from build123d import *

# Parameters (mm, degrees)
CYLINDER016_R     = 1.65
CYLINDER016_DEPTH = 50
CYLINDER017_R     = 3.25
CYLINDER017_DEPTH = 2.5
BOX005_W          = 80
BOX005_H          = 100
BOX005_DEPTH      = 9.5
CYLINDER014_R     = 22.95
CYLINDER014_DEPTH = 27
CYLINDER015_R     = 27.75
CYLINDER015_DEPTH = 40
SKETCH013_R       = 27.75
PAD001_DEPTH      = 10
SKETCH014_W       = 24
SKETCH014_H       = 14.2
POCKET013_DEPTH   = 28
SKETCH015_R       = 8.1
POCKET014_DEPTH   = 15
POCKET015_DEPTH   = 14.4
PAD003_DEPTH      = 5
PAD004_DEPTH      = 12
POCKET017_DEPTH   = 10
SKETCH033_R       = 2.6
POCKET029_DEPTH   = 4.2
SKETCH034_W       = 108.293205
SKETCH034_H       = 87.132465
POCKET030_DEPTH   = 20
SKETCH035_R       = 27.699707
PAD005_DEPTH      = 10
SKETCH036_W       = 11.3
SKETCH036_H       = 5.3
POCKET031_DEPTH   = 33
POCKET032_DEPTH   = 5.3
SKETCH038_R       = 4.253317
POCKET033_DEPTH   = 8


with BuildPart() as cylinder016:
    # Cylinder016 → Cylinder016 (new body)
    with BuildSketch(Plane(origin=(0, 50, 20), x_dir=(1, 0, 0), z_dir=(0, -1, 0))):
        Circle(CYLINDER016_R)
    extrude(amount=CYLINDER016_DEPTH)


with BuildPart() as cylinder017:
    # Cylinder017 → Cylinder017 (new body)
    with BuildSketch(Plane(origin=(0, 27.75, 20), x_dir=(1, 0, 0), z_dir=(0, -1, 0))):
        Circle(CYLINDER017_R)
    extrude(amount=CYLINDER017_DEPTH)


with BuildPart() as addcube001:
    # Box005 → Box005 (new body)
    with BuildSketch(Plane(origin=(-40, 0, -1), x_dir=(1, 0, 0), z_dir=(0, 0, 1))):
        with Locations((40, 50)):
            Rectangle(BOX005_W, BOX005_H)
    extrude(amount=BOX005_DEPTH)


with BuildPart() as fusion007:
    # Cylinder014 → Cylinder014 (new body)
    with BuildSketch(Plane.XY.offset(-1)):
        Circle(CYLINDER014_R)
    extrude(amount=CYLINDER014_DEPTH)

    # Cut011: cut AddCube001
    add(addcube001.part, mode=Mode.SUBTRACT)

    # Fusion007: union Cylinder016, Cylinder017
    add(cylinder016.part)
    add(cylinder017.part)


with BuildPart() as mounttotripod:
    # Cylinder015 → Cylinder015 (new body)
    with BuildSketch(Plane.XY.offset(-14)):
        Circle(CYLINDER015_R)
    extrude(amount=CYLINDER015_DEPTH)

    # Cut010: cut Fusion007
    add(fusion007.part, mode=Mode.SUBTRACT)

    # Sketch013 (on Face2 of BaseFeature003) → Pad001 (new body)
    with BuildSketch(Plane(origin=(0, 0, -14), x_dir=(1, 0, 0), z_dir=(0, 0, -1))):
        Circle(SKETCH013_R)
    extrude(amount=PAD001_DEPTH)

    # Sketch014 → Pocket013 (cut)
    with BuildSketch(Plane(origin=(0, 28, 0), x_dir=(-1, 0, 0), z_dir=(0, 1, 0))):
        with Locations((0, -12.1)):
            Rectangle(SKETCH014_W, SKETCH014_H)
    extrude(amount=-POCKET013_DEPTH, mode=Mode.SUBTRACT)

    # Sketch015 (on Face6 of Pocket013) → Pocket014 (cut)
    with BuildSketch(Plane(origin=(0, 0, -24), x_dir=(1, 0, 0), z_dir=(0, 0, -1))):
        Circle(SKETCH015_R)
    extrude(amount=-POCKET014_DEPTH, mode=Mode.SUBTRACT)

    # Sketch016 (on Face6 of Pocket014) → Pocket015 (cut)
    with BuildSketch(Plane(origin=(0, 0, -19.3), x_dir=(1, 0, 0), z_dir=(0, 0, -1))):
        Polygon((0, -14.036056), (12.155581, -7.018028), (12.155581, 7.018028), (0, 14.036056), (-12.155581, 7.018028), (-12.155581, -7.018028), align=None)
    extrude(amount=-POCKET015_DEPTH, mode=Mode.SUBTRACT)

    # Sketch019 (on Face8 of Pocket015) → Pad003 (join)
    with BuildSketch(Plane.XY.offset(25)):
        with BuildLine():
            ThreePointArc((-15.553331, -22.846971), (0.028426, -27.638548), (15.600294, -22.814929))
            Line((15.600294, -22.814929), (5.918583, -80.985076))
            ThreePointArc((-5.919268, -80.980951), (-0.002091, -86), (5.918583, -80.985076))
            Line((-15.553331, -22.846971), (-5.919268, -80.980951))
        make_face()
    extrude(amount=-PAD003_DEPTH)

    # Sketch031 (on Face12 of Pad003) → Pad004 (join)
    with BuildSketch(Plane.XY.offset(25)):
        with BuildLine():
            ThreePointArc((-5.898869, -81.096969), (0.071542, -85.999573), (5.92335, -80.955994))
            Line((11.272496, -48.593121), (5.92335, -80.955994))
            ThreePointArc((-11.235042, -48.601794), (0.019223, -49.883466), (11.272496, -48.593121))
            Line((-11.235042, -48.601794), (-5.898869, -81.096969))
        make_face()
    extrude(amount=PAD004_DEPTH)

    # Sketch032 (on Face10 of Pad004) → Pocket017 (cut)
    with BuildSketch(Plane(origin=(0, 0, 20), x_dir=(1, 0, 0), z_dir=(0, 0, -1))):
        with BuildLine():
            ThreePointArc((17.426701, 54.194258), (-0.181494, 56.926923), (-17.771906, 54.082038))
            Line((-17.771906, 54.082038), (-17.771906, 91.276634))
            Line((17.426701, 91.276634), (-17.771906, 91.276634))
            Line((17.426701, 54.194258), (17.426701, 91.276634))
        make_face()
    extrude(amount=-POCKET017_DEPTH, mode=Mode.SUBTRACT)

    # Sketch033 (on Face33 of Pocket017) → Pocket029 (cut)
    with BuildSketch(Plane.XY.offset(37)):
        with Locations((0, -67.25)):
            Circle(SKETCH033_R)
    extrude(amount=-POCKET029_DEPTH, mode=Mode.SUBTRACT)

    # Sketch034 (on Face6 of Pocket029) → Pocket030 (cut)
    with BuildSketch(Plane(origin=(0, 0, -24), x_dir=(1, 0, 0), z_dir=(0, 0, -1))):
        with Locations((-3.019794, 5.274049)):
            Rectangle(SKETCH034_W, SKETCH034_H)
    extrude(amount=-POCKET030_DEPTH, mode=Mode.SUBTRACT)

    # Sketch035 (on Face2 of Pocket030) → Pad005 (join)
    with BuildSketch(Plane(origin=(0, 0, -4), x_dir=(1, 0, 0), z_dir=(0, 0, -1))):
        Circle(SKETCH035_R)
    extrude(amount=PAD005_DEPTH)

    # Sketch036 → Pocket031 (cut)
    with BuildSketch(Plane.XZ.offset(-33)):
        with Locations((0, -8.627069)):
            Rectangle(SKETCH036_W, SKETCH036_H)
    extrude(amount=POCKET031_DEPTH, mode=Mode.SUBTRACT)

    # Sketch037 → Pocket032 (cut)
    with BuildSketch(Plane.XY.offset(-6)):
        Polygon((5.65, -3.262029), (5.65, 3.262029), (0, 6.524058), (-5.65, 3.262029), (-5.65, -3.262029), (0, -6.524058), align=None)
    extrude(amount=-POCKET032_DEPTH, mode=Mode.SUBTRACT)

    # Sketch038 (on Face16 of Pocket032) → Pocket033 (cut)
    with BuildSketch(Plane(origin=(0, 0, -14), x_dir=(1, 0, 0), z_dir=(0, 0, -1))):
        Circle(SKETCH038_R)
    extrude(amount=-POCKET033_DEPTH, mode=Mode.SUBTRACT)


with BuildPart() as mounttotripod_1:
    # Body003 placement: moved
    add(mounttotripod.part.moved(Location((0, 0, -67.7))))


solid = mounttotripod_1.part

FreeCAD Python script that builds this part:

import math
import FreeCAD as App
import Part
import Sketcher

V = App.Vector
Q = App.Units.Quantity

doc = App.newDocument("Part")
body = doc.addObject("PartDesign::Body", "Body")

# Sketch on XZ plane
sketch1 = doc.addObject("Sketcher::SketchObject", "Sketch")
body.addObject(sketch1)
sketch1.AttachmentSupport = (doc.XZ_Plane, [""])
sketch1.MapMode = "FlatFace"
sketch1.AttachmentOffset = App.Placement(V(0, 0, -50), App.Rotation())
sketch1.addGeometry(Part.Circle(V(0, 20, 0), V(0, 0, 1), 1.65), False)
sketch1.addConstraint([
    Sketcher.Constraint("PointOnObject", 0, 3, -2),
    Sketcher.Constraint("Diameter", 0, 3.3),
    Sketcher.Constraint("DistanceY", -1, 1, 0, 3, 20.0),
])
pad1 = doc.addObject("PartDesign::Pad", "Pad")
body.addObject(pad1)
pad1.Profile = sketch1
pad1.Length = 50
body2 = doc.addObject("PartDesign::Body", "Body001")

# Sketch on XZ plane
sketch2 = doc.addObject("Sketcher::SketchObject", "Sketch001")
body2.addObject(sketch2)
sketch2.AttachmentSupport = (doc.getObject("XZ_Plane001"), [""])
sketch2.MapMode = "FlatFace"
sketch2.AttachmentOffset = App.Placement(V(0, 0, -27.75), App.Rotation())
sketch2.addGeometry(Part.Circle(V(0, 20, 0), V(0, 0, 1), 3.25), False)
sketch2.addConstraint([
    Sketcher.Constraint("PointOnObject", 0, 3, -2),
    Sketcher.Constraint("Diameter", 0, 6.5),
    Sketcher.Constraint("DistanceY", -1, 1, 0, 3, 20.0),
])
pad2 = doc.addObject("PartDesign::Pad", "Pad001")
body2.addObject(pad2)
pad2.Profile = sketch2
pad2.Length = 2.5
body3 = doc.addObject("PartDesign::Body", "Body002")

# Sketch on XY plane
sketch3 = doc.addObject("Sketcher::SketchObject", "Sketch002")
body3.addObject(sketch3)
sketch3.AttachmentSupport = (doc.getObject("XY_Plane002"), [""])
sketch3.MapMode = "FlatFace"
sketch3.AttachmentOffset = App.Placement(V(0, 0, -1), App.Rotation())
sketch3.addGeometry([
    Part.LineSegment(V(-40, 100, 0), V(-40, 0, 0)),
    Part.LineSegment(V(-40, 0, 0), V(40, 0, 0)),
    Part.LineSegment(V(40, 0, 0), V(40, 100, 0)),
    Part.LineSegment(V(40, 100, 0), V(-40, 100, 0)),
], False)
sketch3.addConstraint([
    Sketcher.Constraint("Coincident", 0, 2, 1, 1),
    Sketcher.Constraint("Coincident", 1, 2, 2, 1),
    Sketcher.Constraint("Coincident", 2, 2, 3, 1),
    Sketcher.Constraint("Coincident", 3, 2, 0, 1),
    Sketcher.Constraint("Vertical", 0),
    Sketcher.Constraint("Horizontal", 1),
    Sketcher.Constraint("Vertical", 2),
    Sketcher.Constraint("Horizontal", 3),
    Sketcher.Constraint("Symmetric", 0, 2, 1, 2, -1, 1),
    Sketcher.Constraint("DistanceX", 1, 1, 1, 2, 80.0),
    Sketcher.Constraint("DistanceY", 0, 2, 0, 1, 100.0),
])
pad3 = doc.addObject("PartDesign::Pad", "Pad002")
body3.addObject(pad3)
pad3.Profile = sketch3
pad3.Length = 9.5
body4 = doc.addObject("PartDesign::Body", "Body003")

# Sketch on XY plane
sketch4 = doc.addObject("Sketcher::SketchObject", "Sketch003")
body4.addObject(sketch4)
sketch4.AttachmentSupport = (doc.getObject("XY_Plane003"), [""])
sketch4.MapMode = "FlatFace"
sketch4.AttachmentOffset = App.Placement(V(0, 0, -1), App.Rotation())
sketch4.addGeometry(Part.Circle(V(0, 0, 0), V(0, 0, 1), 22.95), False)
sketch4.addConstraint([
    Sketcher.Constraint("Coincident", 0, 3, -1, 1),
    Sketcher.Constraint("Diameter", 0, 45.9),
])
pad4 = doc.addObject("PartDesign::Pad", "Pad003")
body4.addObject(pad4)
pad4.Profile = sketch4
pad4.Length = 27
doc.recompute()

boolean = doc.addObject("PartDesign::Boolean", "Boolean")
body4.addObject(boolean)
boolean.Type = "Cut"
boolean.addObjects([body3])
doc.recompute()

boolean2 = doc.addObject("PartDesign::Boolean", "Boolean001")
body4.addObject(boolean2)
boolean2.Type = "Fuse"
boolean2.addObjects([body])
doc.recompute()

boolean3 = doc.addObject("PartDesign::Boolean", "Boolean002")
body4.addObject(boolean3)
boolean3.Type = "Fuse"
boolean3.addObjects([body2])
body5 = doc.addObject("PartDesign::Body", "Body004")

# Sketch on XY plane
sketch5 = doc.addObject("Sketcher::SketchObject", "Sketch004")
body5.addObject(sketch5)
sketch5.AttachmentSupport = (doc.getObject("XY_Plane004"), [""])
sketch5.MapMode = "FlatFace"
sketch5.AttachmentOffset = App.Placement(V(0, 0, -14), App.Rotation())
sketch5.addGeometry(Part.Circle(V(0, 0, 0), V(0, 0, 1), 27.75), False)
sketch5.addConstraint([
    Sketcher.Constraint("Coincident", 0, 3, -1, 1),
    Sketcher.Constraint("Diameter", 0, 55.5),
])
pad5 = doc.addObject("PartDesign::Pad", "Pad004")
body5.addObject(pad5)
pad5.Profile = sketch5
pad5.Length = 40
doc.recompute()

boolean4 = doc.addObject("PartDesign::Boolean", "Boolean003")
body5.addObject(boolean4)
boolean4.Type = "Cut"
boolean4.addObjects([body4])

# Sketch on XY plane
sketch6 = doc.addObject("Sketcher::SketchObject", "Sketch005")
body5.addObject(sketch6)
sketch6.AttachmentSupport = (doc.getObject("XY_Plane004"), [""])
sketch6.MapMode = "FlatFace"
sketch6.AttachmentOffset = App.Placement(V(0, 0, -14), App.Rotation())
sketch6.addGeometry(Part.Circle(V(0, 0, 0), V(0, 0, 1), 27.75), False)
sketch6.addConstraint([
    Sketcher.Constraint("Coincident", 0, 3, -1, 1),
    Sketcher.Constraint("Diameter", 0, 55.5),
])
pad6 = doc.addObject("PartDesign::Pad", "Pad005")
body5.addObject(pad6)
pad6.Profile = sketch6
pad6.Length = 10
pad6.Reversed = True

# Sketch on XZ plane
sketch7 = doc.addObject("Sketcher::SketchObject", "Sketch006")
body5.addObject(sketch7)
sketch7.AttachmentSupport = (doc.getObject("XZ_Plane004"), [""])
sketch7.MapMode = "FlatFace"
sketch7.AttachmentOffset = App.Placement(V(0, 0, -28), App.Rotation())
sketch7.addGeometry([
    Part.LineSegment(V(12, -5, 0), V(12, -19.2, 0)),
    Part.LineSegment(V(12, -19.2, 0), V(-12, -19.2, 0)),
    Part.LineSegment(V(-12, -19.2, 0), V(-12, -5, 0)),
    Part.LineSegment(V(-12, -5, 0), V(12, -5, 0)),
], False)
sketch7.addConstraint([
    Sketcher.Constraint("Coincident", 0, 2, 1, 1),
    Sketcher.Constraint("Coincident", 1, 2, 2, 1),
    Sketcher.Constraint("Coincident", 2, 2, 3, 1),
    Sketcher.Constraint("Coincident", 3, 2, 0, 1),
    Sketcher.Constraint("Vertical", 0),
    Sketcher.Constraint("Horizontal", 1),
    Sketcher.Constraint("Vertical", 2),
    Sketcher.Constraint("Horizontal", 3),
    Sketcher.Constraint("DistanceX", 1, 2, 1, 1, 24.0),
    Sketcher.Constraint("DistanceY", 0, 2, 0, 1, 14.2),
    Sketcher.Constraint("DistanceX", -1, 1, 0, 2, 12.0),
    Sketcher.Constraint("DistanceY", 2, 2, -1, 1, 5.0),
])
pocket1 = doc.addObject("PartDesign::Pocket", "Pocket")
body5.addObject(pocket1)
pocket1.Profile = sketch7
pocket1.Length = 28
pocket1.Reversed = True

# Sketch on XY plane
sketch8 = doc.addObject("Sketcher::SketchObject", "Sketch007")
body5.addObject(sketch8)
sketch8.AttachmentSupport = (doc.getObject("XY_Plane004"), [""])
sketch8.MapMode = "FlatFace"
sketch8.AttachmentOffset = App.Placement(V(0, 0, -24), App.Rotation())
sketch8.addGeometry(Part.Circle(V(0, 0, 0), V(0, 0, 1), 8.1), False)
sketch8.addConstraint([
    Sketcher.Constraint("Coincident", 0, 3, -1, 1),
    Sketcher.Constraint("Diameter", 0, 16.2),
])
pocket2 = doc.addObject("PartDesign::Pocket", "Pocket001")
body5.addObject(pocket2)
pocket2.Profile = sketch8
pocket2.Length = 15
pocket2.Reversed = True

# Sketch on XY plane
sketch9 = doc.addObject("Sketcher::SketchObject", "Sketch008")
body5.addObject(sketch9)
sketch9.AttachmentSupport = (doc.getObject("XY_Plane004"), [""])
sketch9.MapMode = "FlatFace"
sketch9.AttachmentOffset = App.Placement(V(0, 0, -19.3), App.Rotation())
sketch9.addGeometry([
    Part.LineSegment(V(0, 14.036056, 0), V(12.155581, 7.018028, 0)),  # 0
    Part.LineSegment(V(12.155581, 7.018028, 0), V(12.155581, -7.018028, 0)),  # 1
    Part.LineSegment(V(12.155581, -7.018028, 0), V(0, -14.036056, 0)),  # 2
    Part.LineSegment(V(0, -14.036056, 0), V(-12.155581, -7.018028, 0)),  # 3
    Part.LineSegment(V(-12.155581, -7.018028, 0), V(-12.155581, 7.018028, 0)),  # 4
    Part.LineSegment(V(-12.155581, 7.018028, 0), V(0, 14.036056, 0)),  # 5
], False)
sketch9.addConstraint([
    Sketcher.Constraint("Coincident", 0, 2, 1, 1),
    Sketcher.Constraint("Coincident", 1, 2, 2, 1),
    Sketcher.Constraint("Coincident", 2, 2, 3, 1),
    Sketcher.Constraint("Coincident", 3, 2, 4, 1),
    Sketcher.Constraint("Coincident", 4, 2, 5, 1),
    Sketcher.Constraint("Coincident", 5, 2, 0, 1),
    Sketcher.Constraint("Vertical", 1),
    Sketcher.Constraint("Vertical", 4),
    Sketcher.Constraint("Symmetric", 0, 2, 3, 2, -1, 1),
    Sketcher.Constraint("Symmetric", 2, 2, 5, 2, -1, 1),
    Sketcher.Constraint("PointOnObject", 2, 2, -2),
    Sketcher.Constraint("Parallel", 2, 5),
    Sketcher.Constraint("Horizontal", 1, 2, 3, 2),
    Sketcher.Constraint("Angle", 0, Q("-30 deg")),
    Sketcher.Constraint("DistanceY", 1, 2, 1, 1, 14.036056),
    Sketcher.Constraint("DistanceX", -1, 1, 0, 2, 12.155581),
])
pocket3 = doc.addObject("PartDesign::Pocket", "Pocket002")
body5.addObject(pocket3)
pocket3.Profile = sketch9
pocket3.Length = 14.4
pocket3.Reversed = True

# Sketch on XY plane
sketch10 = doc.addObject("Sketcher::SketchObject", "Sketch009")
body5.addObject(sketch10)
sketch10.AttachmentSupport = (doc.getObject("XY_Plane004"), [""])
sketch10.MapMode = "FlatFace"
sketch10.AttachmentOffset = App.Placement(V(0, 0, 25), App.Rotation())
sketch10.addGeometry([
    Part.ArcOfCircle(Part.Circle(V(0, 0.000003, 0), V(0, 0, 1), 27.638566), math.radians(-124.24551), math.radians(-55.636631)),
    Part.LineSegment(V(-15.553331, -22.846971, 0), V(-5.919268, -80.980951, 0)),
    Part.ArcOfCircle(Part.Circle(V(0, -80.000001, 0), V(0, 0, 1), 6), math.radians(-170.590372), math.radians(-9.449559)),
    Part.LineSegment(V(5.918583, -80.985076, 0), V(15.600294, -22.814929, 0)),
], False)
sketch10.addConstraint([
    Sketcher.Constraint("Coincident", 0, 1, 1, 1),
    Sketcher.Constraint("Tangent", 1, 2, 2, 1),
    Sketcher.Constraint("Tangent", 2, 2, 3, 1),
    Sketcher.Constraint("Coincident", 3, 2, 0, 2),
    Sketcher.Constraint("Coincident", 0, 3, -1, 1),
    Sketcher.Constraint("PointOnObject", 2, 3, -2),
    Sketcher.Constraint("Radius", 2, 6.0),
    Sketcher.Constraint("DistanceY", 2, 3, -1, 1, 80.000001),
    Sketcher.Constraint("Radius", 0, 27.638566),
    Sketcher.Constraint("Distance", 1, 58.92686),
    Sketcher.Constraint("DistanceY", 3, 2, -1, 1, 22.814929),
])
pad7 = doc.addObject("PartDesign::Pad", "Pad006")
body5.addObject(pad7)
pad7.Profile = sketch10
pad7.Length = 5
pad7.Reversed = True

# Sketch on XY plane
sketch11 = doc.addObject("Sketcher::SketchObject", "Sketch010")
body5.addObject(sketch11)
sketch11.AttachmentSupport = (doc.getObject("XY_Plane004"), [""])
sketch11.MapMode = "FlatFace"
sketch11.AttachmentOffset = App.Placement(V(0, 0, 25), App.Rotation())
sketch11.addGeometry([
    Part.ArcOfCircle(Part.Circle(V(0, -80, 0), V(0, 0, 1), 6), math.radians(-169.46546), math.radians(-9.168148)),
    Part.LineSegment(V(5.92335, -80.955994, 0), V(11.272496, -48.593121, 0)),
    Part.ArcOfCircle(Part.Circle(V(0.000001, 0.000005, 0), V(0, 0, 1), 49.883474), math.radians(-103.016153), math.radians(-76.939691)),
    Part.LineSegment(V(-11.235042, -48.601794, 0), V(-5.898869, -81.096969, 0)),
], False)
sketch11.addConstraint([
    Sketcher.Constraint("Coincident", 0, 2, 1, 1),
    Sketcher.Constraint("Coincident", 1, 2, 2, 2),
    Sketcher.Constraint("Coincident", 2, 1, 3, 1),
    Sketcher.Constraint("Coincident", 3, 2, 0, 1),
    Sketcher.Constraint("Coincident", 2, 3, -1, 1),
    Sketcher.Constraint("PointOnObject", 0, 3, -2),
    Sketcher.Constraint("Radius", 0, 6.0),
    Sketcher.Constraint("DistanceY", 0, 3, -1, 1, 80.0),
    Sketcher.Constraint("Radius", 2, 49.883474),
    Sketcher.Constraint("DistanceY", 0, 2, 2, 3, 80.955999),
    Sketcher.Constraint("Distance", 3, 32.930398),
    Sketcher.Constraint("DistanceY", 0, 2, 2, 1, 32.3542),
    Sketcher.Constraint("DistanceY", 1, 2, -1, 1, 48.593121),
])
pad8 = doc.addObject("PartDesign::Pad", "Pad007")
body5.addObject(pad8)
pad8.Profile = sketch11
pad8.Length = 12

# Sketch on XY plane
sketch12 = doc.addObject("Sketcher::SketchObject", "Sketch011")
body5.addObject(sketch12)
sketch12.AttachmentSupport = (doc.getObject("XY_Plane004"), [""])
sketch12.MapMode = "FlatFace"
sketch12.AttachmentOffset = App.Placement(V(0, 0, 20), App.Rotation())
sketch12.addGeometry([
    Part.ArcOfCircle(Part.Circle(V(0, -0.000002, 0), V(0, 0, 1), 56.927211), math.radians(-108.191048), math.radians(-72.17429)),
    Part.LineSegment(V(17.426701, -54.194258, 0), V(17.426701, -91.276634, 0)),
    Part.LineSegment(V(17.426701, -91.276634, 0), V(-17.771906, -91.276634, 0)),
    Part.LineSegment(V(-17.771906, -91.276634, 0), V(-17.771906, -54.082038, 0)),
], False)
sketch12.addConstraint([
    Sketcher.Constraint("Coincident", 0, 2, 1, 1),
    Sketcher.Constraint("Coincident", 1, 2, 2, 1),
    Sketcher.Constraint("Coincident", 2, 2, 3, 1),
    Sketcher.Constraint("Coincident", 3, 2, 0, 1),
    Sketcher.Constraint("Vertical", 1),
    Sketcher.Constraint("Horizontal", 2),
    Sketcher.Constraint("Vertical", 3),
    Sketcher.Constraint("Coincident", 0, 3, -1, 1),
    Sketcher.Constraint("Radius", 0, 56.927211),
    Sketcher.Constraint("DistanceX", -1, 1, 0, 2, 17.426701),
    Sketcher.Constraint("DistanceX", 2, 2, 2, 1, 35.198607),
    Sketcher.Constraint("DistanceY", 1, 2, 1, 1, 37.082376),
])
pocket4 = doc.addObject("PartDesign::Pocket", "Pocket003")
body5.addObject(pocket4)
pocket4.Profile = sketch12
pocket4.Length = 10
pocket4.Reversed = True

# Sketch on XY plane
sketch13 = doc.addObject("Sketcher::SketchObject", "Sketch012")
body5.addObject(sketch13)
sketch13.AttachmentSupport = (doc.getObject("XY_Plane004"), [""])
sketch13.MapMode = "FlatFace"
sketch13.AttachmentOffset = App.Placement(V(0, 0, 37), App.Rotation())
sketch13.addGeometry(Part.Circle(V(0, -67.25, 0), V(0, 0, 1), 2.6), False)
sketch13.addConstraint([
    Sketcher.Constraint("PointOnObject", 0, 3, -2),
    Sketcher.Constraint("Diameter", 0, 5.2),
    Sketcher.Constraint("DistanceY", 0, 3, -1, 1, 67.25),
])
pocket5 = doc.addObject("PartDesign::Pocket", "Pocket004")
body5.addObject(pocket5)
pocket5.Profile = sketch13
pocket5.Length = 4.2

# Sketch on XY plane
sketch14 = doc.addObject("Sketcher::SketchObject", "Sketch013")
body5.addObject(sketch14)
sketch14.AttachmentSupport = (doc.getObject("XY_Plane004"), [""])
sketch14.MapMode = "FlatFace"
sketch14.AttachmentOffset = App.Placement(V(0, 0, -24), App.Rotation())
sketch14.addGeometry([
    Part.LineSegment(V(-57.166396, -48.840282, 0), V(-57.166396, 38.292184, 0)),
    Part.LineSegment(V(-57.166396, 38.292184, 0), V(51.126809, 38.292184, 0)),
    Part.LineSegment(V(51.126809, 38.292184, 0), V(51.126809, -48.840282, 0)),
    Part.LineSegment(V(51.126809, -48.840282, 0), V(-57.166396, -48.840282, 0)),
], False)
sketch14.addConstraint([
    Sketcher.Constraint("Coincident", 0, 2, 1, 1),
    Sketcher.Constraint("Coincident", 1, 2, 2, 1),
    Sketcher.Constraint("Coincident", 2, 2, 3, 1),
    Sketcher.Constraint("Coincident", 3, 2, 0, 1),
    Sketcher.Constraint("Vertical", 0),
    Sketcher.Constraint("Horizontal", 1),
    Sketcher.Constraint("Vertical", 2),
    Sketcher.Constraint("Horizontal", 3),
    Sketcher.Constraint("DistanceX", 1, 1, 1, 2, 108.293205),
    Sketcher.Constraint("DistanceY", 0, 1, 0, 2, 87.132465),
    Sketcher.Constraint("DistanceX", -1, 1, 1, 2, 51.126809),
    Sketcher.Constraint("DistanceY", 2, 2, -1, 1, 48.840282),
])
pocket6 = doc.addObject("PartDesign::Pocket", "Pocket005")
body5.addObject(pocket6)
pocket6.Profile = sketch14
pocket6.Length = 20
pocket6.Reversed = True

# Sketch on XY plane
sketch15 = doc.addObject("Sketcher::SketchObject", "Sketch014")
body5.addObject(sketch15)
sketch15.AttachmentSupport = (doc.getObject("XY_Plane004"), [""])
sketch15.MapMode = "FlatFace"
sketch15.AttachmentOffset = App.Placement(V(0, 0, -4), App.Rotation())
sketch15.addGeometry(Part.Circle(V(0, 0, 0), V(0, 0, 1), 27.699707), False)
sketch15.addConstraint([
    Sketcher.Constraint("Coincident", 0, 3, -1, 1),
    Sketcher.Constraint("Diameter", 0, 55.399414),
])
pad9 = doc.addObject("PartDesign::Pad", "Pad008")
body5.addObject(pad9)
pad9.Profile = sketch15
pad9.Length = 10
pad9.Reversed = True

# Sketch on XZ plane
sketch16 = doc.addObject("Sketcher::SketchObject", "Sketch015")
body5.addObject(sketch16)
sketch16.AttachmentSupport = (doc.getObject("XZ_Plane004"), [""])
sketch16.MapMode = "FlatFace"
sketch16.AttachmentOffset = App.Placement(V(0, 0, -33), App.Rotation())
sketch16.addGeometry([
    Part.LineSegment(V(-5.65, -5.977069, 0), V(-5.65, -11.277069, 0)),
    Part.LineSegment(V(-5.65, -11.277069, 0), V(5.65, -11.277069, 0)),
    Part.LineSegment(V(5.65, -11.277069, 0), V(5.65, -5.977069, 0)),
    Part.LineSegment(V(5.65, -5.977069, 0), V(-5.65, -5.977069, 0)),
], False)
sketch16.addConstraint([
    Sketcher.Constraint("Coincident", 0, 2, 1, 1),
    Sketcher.Constraint("Coincident", 1, 2, 2, 1),
    Sketcher.Constraint("Coincident", 2, 2, 3, 1),
    Sketcher.Constraint("Coincident", 3, 2, 0, 1),
    Sketcher.Constraint("Vertical", 0),
    Sketcher.Constraint("Horizontal", 1),
    Sketcher.Constraint("Vertical", 2),
    Sketcher.Constraint("Horizontal", 3),
    Sketcher.Constraint("DistanceX", 1, 1, 1, 2, 11.3),
    Sketcher.Constraint("DistanceY", 0, 2, 0, 1, 5.3),
    Sketcher.Constraint("DistanceX", 0, 2, -1, 1, 5.65),
    Sketcher.Constraint("DistanceY", 0, 2, -1, 1, 11.277069),
])
pocket7 = doc.addObject("PartDesign::Pocket", "Pocket006")
body5.addObject(pocket7)
pocket7.Profile = sketch16
pocket7.Length = 33
pocket7.Reversed = True

# Sketch on XY plane
sketch17 = doc.addObject("Sketcher::SketchObject", "Sketch016")
body5.addObject(sketch17)
sketch17.AttachmentSupport = (doc.getObject("XY_Plane004"), [""])
sketch17.MapMode = "FlatFace"
sketch17.AttachmentOffset = App.Placement(V(0, 0, -6), App.Rotation())
sketch17.addGeometry([
    Part.LineSegment(V(5.65, -3.262029, 0), V(5.65, 3.262029, 0)),  # 0
    Part.LineSegment(V(5.65, 3.262029, 0), V(0, 6.524058, 0)),  # 1
    Part.LineSegment(V(0, 6.524058, 0), V(-5.65, 3.262029, 0)),  # 2
    Part.LineSegment(V(-5.65, 3.262029, 0), V(-5.65, -3.262029, 0)),  # 3
    Part.LineSegment(V(-5.65, -3.262029, 0), V(0, -6.524058, 0)),  # 4
    Part.LineSegment(V(0, -6.524058, 0), V(5.65, -3.262029, 0)),  # 5
], False)
sketch17.addConstraint([
    Sketcher.Constraint("Coincident", 0, 2, 1, 1),
    Sketcher.Constraint("Coincident", 1, 2, 2, 1),
    Sketcher.Constraint("Coincident", 2, 2, 3, 1),
    Sketcher.Constraint("Coincident", 3, 2, 4, 1),
    Sketcher.Constraint("Coincident", 4, 2, 5, 1),
    Sketcher.Constraint("Coincident", 5, 2, 0, 1),
    Sketcher.Constraint("Vertical", 0),
    Sketcher.Constraint("Vertical", 3),
    Sketcher.Constraint("Symmetric", 0, 2, 3, 2, -1, 1),
    Sketcher.Constraint("Symmetric", 1, 2, 4, 2, -1, 1),
    Sketcher.Constraint("PointOnObject", 1, 2, -2),
    Sketcher.Constraint("Parallel", 2, 5),
    Sketcher.Constraint("Horizontal", 0, 2, 2, 2),
    Sketcher.Constraint("Angle", 1, Q("150 deg")),
    Sketcher.Constraint("DistanceX", 2, 2, 0, 2, 11.3),
    Sketcher.Constraint("DistanceY", 0, 1, 0, 2, 6.524058),
])
pocket8 = doc.addObject("PartDesign::Pocket", "Pocket007")
body5.addObject(pocket8)
pocket8.Profile = sketch17
pocket8.Length = 5.3

# Sketch on XY plane
sketch18 = doc.addObject("Sketcher::SketchObject", "Sketch017")
body5.addObject(sketch18)
sketch18.AttachmentSupport = (doc.getObject("XY_Plane004"), [""])
sketch18.MapMode = "FlatFace"
sketch18.AttachmentOffset = App.Placement(V(0, 0, -14), App.Rotation())
sketch18.addGeometry(Part.Circle(V(0, 0, 0), V(0, 0, 1), 4.253317), False)
sketch18.addConstraint([
    Sketcher.Constraint("Coincident", 0, 3, -1, 1),
    Sketcher.Constraint("Diameter", 0, 8.506634),
])
pocket9 = doc.addObject("PartDesign::Pocket", "Pocket008")
body5.addObject(pocket9)
pocket9.Profile = sketch18
pocket9.Length = 8
pocket9.Reversed = True
body6 = doc.addObject("PartDesign::Body", "Body005")
doc.recompute()

body5.Placement = App.Placement(V(0, 0, -67.7), App.Rotation(V(0, 0, 1), 0))
boolean5 = doc.addObject("PartDesign::Boolean", "Boolean004")
body6.addObject(boolean5)
boolean5.Type = "Fuse"
boolean5.addObjects([body5])

doc.recompute()
